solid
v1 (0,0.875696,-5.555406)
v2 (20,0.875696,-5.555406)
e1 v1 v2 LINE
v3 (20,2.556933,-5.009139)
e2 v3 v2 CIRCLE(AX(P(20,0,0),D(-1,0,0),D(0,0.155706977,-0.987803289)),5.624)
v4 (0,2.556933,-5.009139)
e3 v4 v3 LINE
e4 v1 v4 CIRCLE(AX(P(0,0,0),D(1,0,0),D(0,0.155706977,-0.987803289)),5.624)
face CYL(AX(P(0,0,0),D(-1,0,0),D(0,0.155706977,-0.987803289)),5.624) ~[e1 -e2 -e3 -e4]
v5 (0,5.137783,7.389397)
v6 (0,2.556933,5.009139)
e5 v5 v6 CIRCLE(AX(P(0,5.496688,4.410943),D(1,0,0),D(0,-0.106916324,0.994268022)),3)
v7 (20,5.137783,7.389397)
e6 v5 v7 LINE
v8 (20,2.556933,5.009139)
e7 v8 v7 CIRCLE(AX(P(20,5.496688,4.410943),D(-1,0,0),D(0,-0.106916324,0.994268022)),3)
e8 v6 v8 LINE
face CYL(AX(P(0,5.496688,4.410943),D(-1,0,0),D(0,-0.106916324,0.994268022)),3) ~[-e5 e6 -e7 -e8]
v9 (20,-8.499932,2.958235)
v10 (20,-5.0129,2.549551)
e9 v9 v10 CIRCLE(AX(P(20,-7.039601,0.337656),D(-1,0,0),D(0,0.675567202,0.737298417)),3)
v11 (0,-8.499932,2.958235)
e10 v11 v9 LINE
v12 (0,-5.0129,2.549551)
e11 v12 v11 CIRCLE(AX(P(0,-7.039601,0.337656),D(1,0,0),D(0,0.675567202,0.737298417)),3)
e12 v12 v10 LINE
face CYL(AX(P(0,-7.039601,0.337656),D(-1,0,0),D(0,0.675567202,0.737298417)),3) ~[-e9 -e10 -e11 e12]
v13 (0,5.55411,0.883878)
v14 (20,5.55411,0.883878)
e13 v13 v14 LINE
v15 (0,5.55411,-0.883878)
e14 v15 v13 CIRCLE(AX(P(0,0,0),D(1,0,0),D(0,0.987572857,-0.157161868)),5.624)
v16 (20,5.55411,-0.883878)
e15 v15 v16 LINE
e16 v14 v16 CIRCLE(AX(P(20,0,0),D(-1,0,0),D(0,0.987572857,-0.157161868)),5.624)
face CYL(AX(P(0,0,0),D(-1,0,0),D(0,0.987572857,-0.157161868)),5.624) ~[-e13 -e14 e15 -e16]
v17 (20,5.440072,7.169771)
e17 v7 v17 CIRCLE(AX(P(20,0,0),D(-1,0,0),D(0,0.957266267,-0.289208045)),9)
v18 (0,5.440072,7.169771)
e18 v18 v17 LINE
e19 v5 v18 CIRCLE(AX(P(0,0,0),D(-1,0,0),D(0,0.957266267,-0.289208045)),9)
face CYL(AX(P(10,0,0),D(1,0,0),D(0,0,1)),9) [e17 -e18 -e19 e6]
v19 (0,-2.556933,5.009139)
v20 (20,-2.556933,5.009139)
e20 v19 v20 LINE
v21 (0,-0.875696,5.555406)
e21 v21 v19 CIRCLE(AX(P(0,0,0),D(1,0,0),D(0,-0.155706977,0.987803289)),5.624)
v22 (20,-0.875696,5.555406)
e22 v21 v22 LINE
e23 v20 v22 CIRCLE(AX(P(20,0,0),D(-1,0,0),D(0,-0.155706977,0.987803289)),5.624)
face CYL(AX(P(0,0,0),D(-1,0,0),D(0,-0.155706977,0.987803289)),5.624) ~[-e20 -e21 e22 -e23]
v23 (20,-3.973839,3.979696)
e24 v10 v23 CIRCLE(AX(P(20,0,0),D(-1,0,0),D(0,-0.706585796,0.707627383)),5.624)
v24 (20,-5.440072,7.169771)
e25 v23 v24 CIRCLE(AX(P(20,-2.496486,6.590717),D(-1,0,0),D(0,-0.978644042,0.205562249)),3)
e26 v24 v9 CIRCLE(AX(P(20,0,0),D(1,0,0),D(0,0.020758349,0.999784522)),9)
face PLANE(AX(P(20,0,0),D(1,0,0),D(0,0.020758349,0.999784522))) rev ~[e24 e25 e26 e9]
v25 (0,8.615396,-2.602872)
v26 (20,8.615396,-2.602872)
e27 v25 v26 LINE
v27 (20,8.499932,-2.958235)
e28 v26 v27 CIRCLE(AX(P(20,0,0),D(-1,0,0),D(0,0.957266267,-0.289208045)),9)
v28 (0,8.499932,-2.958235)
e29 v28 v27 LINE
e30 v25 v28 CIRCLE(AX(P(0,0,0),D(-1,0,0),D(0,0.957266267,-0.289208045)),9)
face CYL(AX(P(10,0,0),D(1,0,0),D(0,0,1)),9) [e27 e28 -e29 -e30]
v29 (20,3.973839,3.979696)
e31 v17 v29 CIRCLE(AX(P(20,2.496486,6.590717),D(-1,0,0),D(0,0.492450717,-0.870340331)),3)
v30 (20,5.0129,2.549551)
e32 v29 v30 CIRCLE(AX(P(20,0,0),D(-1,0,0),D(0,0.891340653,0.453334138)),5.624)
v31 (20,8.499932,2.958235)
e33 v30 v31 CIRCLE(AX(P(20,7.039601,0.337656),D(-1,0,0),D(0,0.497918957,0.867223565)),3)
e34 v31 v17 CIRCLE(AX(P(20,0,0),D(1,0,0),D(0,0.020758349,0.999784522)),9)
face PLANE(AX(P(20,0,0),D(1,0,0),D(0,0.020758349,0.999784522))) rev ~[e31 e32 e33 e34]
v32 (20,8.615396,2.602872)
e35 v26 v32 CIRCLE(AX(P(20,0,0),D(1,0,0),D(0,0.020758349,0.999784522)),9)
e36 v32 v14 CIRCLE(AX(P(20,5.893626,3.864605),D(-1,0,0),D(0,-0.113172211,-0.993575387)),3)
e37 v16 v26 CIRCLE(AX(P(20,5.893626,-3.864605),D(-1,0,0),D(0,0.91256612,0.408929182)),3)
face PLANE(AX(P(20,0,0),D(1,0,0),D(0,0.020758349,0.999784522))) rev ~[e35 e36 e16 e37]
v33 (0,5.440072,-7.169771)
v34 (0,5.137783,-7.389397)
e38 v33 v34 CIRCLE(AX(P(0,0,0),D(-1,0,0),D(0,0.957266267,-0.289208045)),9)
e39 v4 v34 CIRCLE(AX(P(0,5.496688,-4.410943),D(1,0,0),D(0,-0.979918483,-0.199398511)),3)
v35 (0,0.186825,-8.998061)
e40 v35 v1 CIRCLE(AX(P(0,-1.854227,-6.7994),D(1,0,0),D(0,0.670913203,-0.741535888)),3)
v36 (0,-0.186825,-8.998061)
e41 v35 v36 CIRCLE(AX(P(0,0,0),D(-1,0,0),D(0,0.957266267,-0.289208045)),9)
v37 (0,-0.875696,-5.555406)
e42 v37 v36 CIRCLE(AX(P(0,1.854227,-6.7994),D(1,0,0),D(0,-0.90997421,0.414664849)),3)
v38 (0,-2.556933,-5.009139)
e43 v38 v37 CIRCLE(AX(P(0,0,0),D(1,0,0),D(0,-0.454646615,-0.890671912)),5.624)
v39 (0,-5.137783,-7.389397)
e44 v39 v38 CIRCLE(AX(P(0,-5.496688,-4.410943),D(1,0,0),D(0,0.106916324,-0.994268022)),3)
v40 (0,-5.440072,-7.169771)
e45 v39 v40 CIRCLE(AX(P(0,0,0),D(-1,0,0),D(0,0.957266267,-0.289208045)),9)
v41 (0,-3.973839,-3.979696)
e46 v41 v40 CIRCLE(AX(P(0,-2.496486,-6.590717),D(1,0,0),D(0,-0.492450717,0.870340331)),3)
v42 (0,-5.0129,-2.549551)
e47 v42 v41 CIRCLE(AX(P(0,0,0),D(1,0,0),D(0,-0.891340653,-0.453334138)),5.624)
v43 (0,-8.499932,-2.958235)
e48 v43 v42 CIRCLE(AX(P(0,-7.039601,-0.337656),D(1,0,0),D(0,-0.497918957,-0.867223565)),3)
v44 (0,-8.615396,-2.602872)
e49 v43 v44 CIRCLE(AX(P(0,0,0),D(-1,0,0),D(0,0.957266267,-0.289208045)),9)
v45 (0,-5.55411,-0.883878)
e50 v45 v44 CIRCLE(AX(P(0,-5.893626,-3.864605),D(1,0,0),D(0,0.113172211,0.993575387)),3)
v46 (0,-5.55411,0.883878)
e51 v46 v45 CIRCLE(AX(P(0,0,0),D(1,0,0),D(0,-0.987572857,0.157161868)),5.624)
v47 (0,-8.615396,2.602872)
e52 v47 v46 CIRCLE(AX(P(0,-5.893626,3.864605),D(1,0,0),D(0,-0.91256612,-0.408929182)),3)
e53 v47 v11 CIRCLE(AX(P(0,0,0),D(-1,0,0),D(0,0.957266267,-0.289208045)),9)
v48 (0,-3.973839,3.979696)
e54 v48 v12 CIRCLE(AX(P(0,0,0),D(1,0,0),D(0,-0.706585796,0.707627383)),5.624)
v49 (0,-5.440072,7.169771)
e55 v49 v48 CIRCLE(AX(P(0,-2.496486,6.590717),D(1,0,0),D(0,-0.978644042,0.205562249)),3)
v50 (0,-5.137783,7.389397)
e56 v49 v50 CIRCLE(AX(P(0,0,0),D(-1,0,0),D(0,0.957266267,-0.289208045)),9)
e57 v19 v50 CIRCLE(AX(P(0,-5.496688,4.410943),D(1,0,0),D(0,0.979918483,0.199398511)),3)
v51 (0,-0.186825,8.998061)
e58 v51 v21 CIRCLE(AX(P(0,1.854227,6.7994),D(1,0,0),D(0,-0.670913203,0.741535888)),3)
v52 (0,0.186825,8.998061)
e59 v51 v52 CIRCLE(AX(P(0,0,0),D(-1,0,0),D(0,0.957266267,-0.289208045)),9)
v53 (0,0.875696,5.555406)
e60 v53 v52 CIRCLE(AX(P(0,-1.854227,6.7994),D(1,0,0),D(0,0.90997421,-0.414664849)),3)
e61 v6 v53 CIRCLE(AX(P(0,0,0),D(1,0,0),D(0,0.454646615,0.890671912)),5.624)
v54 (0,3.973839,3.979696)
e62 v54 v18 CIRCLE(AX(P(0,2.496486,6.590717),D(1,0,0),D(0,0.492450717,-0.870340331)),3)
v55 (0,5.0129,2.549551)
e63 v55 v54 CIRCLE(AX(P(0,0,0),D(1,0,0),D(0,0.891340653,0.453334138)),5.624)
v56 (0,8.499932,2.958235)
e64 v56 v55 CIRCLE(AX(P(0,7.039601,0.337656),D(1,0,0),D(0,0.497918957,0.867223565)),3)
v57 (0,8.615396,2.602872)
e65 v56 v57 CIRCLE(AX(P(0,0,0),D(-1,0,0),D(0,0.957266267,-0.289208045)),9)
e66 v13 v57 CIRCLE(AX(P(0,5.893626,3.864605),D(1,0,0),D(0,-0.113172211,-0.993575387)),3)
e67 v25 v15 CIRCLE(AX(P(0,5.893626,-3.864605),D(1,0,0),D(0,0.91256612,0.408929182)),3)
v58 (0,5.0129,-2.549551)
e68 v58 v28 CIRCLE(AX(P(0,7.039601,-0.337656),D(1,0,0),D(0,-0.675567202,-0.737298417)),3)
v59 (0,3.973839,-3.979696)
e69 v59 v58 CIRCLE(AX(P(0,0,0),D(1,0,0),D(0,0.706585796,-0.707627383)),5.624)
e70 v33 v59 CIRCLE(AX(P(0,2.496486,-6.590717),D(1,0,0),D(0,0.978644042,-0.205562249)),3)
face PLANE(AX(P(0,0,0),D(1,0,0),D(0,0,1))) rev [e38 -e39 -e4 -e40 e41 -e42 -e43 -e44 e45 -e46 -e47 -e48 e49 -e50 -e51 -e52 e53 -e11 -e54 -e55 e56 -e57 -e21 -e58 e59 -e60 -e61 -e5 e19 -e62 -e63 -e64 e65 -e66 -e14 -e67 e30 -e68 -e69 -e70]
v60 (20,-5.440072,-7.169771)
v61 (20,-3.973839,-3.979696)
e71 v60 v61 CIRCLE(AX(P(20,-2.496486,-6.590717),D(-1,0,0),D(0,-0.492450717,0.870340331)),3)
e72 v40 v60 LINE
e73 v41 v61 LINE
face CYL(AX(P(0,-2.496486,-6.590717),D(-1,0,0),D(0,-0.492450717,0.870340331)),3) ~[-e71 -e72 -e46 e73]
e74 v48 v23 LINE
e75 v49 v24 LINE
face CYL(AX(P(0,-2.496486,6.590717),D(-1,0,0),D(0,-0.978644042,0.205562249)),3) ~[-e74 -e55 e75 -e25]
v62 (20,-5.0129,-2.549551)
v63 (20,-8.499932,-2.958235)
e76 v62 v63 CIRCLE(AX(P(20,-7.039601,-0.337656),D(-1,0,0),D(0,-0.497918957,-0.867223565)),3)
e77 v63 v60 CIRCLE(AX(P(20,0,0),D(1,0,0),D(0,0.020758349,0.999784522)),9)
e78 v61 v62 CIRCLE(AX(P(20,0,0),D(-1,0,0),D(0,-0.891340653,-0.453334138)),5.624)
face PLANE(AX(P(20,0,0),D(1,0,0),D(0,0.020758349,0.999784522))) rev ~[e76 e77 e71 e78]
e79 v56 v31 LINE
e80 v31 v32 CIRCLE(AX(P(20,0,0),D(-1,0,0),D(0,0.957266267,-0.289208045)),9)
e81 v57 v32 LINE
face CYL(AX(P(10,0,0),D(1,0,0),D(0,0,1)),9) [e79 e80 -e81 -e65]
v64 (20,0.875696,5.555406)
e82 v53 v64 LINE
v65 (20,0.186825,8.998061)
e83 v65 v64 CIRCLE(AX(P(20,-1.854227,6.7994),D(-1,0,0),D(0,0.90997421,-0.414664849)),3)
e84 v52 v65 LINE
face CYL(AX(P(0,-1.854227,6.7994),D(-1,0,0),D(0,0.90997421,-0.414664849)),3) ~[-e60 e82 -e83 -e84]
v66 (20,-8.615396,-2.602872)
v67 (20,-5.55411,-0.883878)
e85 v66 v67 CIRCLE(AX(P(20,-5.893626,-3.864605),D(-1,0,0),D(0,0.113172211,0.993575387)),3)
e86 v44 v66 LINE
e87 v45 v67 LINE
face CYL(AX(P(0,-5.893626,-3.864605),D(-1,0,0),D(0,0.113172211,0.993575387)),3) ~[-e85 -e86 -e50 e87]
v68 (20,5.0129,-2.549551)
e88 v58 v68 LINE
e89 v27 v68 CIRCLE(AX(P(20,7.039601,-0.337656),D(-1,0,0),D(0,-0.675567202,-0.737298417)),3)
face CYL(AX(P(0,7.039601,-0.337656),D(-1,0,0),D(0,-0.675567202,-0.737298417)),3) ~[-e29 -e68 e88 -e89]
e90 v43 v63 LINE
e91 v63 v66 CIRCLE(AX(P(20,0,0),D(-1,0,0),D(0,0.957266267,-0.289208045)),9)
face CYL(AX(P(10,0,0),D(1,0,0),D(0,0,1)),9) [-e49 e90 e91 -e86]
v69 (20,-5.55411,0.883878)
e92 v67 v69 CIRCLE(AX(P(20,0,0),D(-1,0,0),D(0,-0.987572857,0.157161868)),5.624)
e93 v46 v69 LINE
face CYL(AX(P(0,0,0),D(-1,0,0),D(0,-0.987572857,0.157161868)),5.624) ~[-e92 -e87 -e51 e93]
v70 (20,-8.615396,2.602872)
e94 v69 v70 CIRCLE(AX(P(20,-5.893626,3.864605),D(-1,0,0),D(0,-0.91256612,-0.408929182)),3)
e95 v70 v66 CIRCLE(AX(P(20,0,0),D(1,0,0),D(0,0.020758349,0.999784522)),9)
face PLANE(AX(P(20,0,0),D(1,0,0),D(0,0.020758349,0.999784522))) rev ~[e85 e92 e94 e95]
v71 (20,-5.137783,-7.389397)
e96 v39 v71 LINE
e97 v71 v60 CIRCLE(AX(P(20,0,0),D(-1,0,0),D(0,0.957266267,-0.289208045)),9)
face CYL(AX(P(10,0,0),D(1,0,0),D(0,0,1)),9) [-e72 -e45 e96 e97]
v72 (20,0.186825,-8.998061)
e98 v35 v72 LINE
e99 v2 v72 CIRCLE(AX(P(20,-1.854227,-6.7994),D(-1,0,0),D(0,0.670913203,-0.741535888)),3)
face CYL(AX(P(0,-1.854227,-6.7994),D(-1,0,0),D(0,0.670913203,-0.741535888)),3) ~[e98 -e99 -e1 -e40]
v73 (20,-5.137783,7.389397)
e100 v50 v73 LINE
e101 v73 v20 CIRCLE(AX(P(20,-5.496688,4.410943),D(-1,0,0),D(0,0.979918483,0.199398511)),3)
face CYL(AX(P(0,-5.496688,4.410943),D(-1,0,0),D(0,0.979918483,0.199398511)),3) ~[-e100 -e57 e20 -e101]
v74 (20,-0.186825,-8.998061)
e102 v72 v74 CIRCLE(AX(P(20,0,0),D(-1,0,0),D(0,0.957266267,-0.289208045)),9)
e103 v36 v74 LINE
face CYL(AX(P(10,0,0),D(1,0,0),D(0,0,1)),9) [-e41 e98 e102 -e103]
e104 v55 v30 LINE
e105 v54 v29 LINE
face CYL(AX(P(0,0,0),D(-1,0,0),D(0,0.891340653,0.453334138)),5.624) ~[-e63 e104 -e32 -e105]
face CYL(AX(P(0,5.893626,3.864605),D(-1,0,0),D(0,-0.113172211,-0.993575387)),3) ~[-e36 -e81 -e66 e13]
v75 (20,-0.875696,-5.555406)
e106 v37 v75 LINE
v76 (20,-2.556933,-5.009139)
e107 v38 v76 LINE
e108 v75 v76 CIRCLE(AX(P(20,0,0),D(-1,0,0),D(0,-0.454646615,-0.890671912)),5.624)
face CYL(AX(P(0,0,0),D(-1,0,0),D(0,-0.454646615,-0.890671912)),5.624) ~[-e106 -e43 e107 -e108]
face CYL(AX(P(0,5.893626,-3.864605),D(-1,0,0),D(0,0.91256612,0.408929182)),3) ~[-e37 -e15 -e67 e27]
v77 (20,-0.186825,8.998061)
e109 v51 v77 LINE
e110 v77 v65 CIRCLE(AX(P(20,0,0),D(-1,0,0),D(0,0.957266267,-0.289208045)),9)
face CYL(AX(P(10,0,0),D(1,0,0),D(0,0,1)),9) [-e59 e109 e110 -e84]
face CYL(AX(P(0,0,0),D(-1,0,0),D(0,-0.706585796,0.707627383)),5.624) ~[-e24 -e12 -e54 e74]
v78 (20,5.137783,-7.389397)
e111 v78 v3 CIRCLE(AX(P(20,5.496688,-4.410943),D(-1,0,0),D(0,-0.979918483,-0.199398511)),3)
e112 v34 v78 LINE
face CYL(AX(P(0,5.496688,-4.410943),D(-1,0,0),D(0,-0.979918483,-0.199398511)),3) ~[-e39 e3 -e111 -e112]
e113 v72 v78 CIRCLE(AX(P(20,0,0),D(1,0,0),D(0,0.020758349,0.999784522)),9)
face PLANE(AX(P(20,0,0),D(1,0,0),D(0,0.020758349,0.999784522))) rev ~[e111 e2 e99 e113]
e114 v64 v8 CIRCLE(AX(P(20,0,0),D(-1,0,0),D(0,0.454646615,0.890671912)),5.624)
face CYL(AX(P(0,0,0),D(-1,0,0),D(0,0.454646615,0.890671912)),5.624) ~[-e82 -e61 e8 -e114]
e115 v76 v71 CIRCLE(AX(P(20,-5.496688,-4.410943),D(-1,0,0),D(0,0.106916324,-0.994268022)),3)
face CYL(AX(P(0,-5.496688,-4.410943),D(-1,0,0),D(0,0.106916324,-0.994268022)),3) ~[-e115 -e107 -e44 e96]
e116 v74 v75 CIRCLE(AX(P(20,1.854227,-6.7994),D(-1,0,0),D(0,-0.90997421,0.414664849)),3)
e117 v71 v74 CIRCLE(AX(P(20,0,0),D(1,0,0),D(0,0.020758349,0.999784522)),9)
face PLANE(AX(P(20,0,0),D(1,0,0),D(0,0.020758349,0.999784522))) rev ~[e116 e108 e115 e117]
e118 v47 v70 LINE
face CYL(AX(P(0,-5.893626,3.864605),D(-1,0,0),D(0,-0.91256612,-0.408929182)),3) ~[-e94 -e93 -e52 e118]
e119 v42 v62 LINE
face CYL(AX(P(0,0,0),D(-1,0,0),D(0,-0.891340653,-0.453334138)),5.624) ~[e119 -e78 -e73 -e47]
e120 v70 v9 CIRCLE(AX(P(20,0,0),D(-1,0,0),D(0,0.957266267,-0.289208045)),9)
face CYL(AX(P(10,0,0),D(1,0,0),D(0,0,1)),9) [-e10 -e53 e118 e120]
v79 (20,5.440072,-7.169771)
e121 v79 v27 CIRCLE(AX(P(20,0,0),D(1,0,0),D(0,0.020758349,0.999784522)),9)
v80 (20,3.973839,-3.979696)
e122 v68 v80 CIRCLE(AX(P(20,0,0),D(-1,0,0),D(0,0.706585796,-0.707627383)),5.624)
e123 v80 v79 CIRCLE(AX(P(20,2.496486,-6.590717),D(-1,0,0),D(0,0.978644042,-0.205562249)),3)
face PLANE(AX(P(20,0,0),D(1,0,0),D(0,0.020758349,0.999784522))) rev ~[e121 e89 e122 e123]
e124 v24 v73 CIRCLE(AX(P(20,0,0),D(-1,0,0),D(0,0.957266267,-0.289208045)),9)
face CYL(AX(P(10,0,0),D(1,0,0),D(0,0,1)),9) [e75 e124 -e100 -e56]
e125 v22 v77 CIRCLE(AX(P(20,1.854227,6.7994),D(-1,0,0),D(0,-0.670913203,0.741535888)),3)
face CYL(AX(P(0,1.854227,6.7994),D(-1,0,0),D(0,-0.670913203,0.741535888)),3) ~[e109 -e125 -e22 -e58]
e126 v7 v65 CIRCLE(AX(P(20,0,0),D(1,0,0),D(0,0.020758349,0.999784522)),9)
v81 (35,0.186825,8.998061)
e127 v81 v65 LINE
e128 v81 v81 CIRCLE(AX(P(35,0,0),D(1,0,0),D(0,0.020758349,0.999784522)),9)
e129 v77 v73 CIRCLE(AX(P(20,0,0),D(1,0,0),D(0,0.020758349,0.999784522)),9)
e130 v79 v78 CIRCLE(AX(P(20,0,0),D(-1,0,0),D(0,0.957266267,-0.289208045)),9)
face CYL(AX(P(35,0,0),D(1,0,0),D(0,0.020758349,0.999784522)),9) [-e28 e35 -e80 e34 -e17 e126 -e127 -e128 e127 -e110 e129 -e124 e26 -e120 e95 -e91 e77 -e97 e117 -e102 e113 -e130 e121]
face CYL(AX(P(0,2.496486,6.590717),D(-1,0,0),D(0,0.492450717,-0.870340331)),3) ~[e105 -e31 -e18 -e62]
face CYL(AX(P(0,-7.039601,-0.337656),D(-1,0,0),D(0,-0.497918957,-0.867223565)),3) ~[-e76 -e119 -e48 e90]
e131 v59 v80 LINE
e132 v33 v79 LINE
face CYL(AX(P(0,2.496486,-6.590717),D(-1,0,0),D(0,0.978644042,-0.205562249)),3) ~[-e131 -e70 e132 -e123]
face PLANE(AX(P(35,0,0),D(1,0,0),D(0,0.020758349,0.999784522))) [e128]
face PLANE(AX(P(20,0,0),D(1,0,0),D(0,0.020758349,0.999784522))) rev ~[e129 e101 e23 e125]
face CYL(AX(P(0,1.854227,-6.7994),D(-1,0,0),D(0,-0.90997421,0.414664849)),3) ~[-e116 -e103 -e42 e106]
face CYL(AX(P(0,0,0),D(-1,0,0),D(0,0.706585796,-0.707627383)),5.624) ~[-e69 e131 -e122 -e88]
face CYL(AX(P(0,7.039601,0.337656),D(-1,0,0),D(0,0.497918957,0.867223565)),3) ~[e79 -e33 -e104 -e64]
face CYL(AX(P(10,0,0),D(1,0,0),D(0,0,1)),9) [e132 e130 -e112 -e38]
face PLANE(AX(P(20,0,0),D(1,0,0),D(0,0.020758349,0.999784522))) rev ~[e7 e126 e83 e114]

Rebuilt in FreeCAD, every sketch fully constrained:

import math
import FreeCAD as App
import Part
import Sketcher

doc = App.newDocument("Part")
params = doc.addObject("Spreadsheet::Sheet", "Params")
for row, (alias, value) in enumerate([
    ("sketch1_width", "20 mm"),
    ("sketch1_height", "9 mm"),
    ("revolution_angle", "360 deg"),
    ("sketch2_radius", "3 mm"),
    ("sketch3_diameter", "5 mm"),
    ("pocket2_length", "100.000102 mm"),
    ("sketch4_diameter", "6 mm"),
    ("pad1_length", "20 mm"),
    ("sketch5_diameter", "18 mm"),
    ("pad2_length", "15 mm"),
], start=1):
    params.set(f"A{row}", alias)
    params.set(f"B{row}", "=" + value)
    params.setAlias(f"B{row}", alias)

body = doc.addObject("PartDesign::Body", "Body")

sketch1 = body.newObject("Sketcher::SketchObject", "Sketch")
sketch1.AttachmentSupport = (doc.getObject("XZ_Plane"), [""])
sketch1.MapMode = "FlatFace"
sketch1.addGeometry(Part.LineSegment(App.Vector(0, -9, 0), App.Vector(0, 0, 0)), False)
sketch1.addGeometry(Part.LineSegment(App.Vector(0, 0, 0), App.Vector(20, 0, 0)), False)
sketch1.addGeometry(Part.LineSegment(App.Vector(20, 0, 0), App.Vector(20, -9, 0)), False)
sketch1.addGeometry(Part.LineSegment(App.Vector(20, -9, 0), App.Vector(0, -9, 0)), False)
sketch1.addConstraint(Sketcher.Constraint("Coincident", 0, 2, 1, 1))
sketch1.addConstraint(Sketcher.Constraint("Coincident", 1, 2, 2, 1))
sketch1.addConstraint(Sketcher.Constraint("Coincident", 2, 2, 3, 1))
sketch1.addConstraint(Sketcher.Constraint("Coincident", 3, 2, 0, 1))
sketch1.addConstraint(Sketcher.Constraint("Vertical", 0))
sketch1.addConstraint(Sketcher.Constraint("Horizontal", 1))
sketch1.addConstraint(Sketcher.Constraint("Vertical", 2))
sketch1.addConstraint(Sketcher.Constraint("Horizontal", 3))
sketch1.addConstraint(Sketcher.Constraint("Coincident", 0, 2, -1, 1))
sketch1.addConstraint(Sketcher.Constraint("DistanceX", 1, 1, 1, 2, 20.0))
sketch1.addConstraint(Sketcher.Constraint("DistanceY", 0, 1, 0, 2, 9.0))
sketch1.setExpression("Constraints[9]", "Params.sketch1_width")
sketch1.setExpression("Constraints[10]", "Params.sketch1_height")
revolution = body.newObject("PartDesign::Revolution", "Revolution")
revolution.Profile = sketch1
revolution.ReferenceAxis = (sketch1, ["H_Axis"])
revolution.setExpression("Angle", "Params.revolution_angle")

sketch2 = body.newObject("Sketcher::SketchObject", "Sketch001")
sketch2.AttachmentSupport = (doc.getObject("YZ_Plane"), [""])
sketch2.MapMode = "FlatFace"
sketch2.addGeometry(Part.ArcOfCircle(Part.Circle(App.Vector(0, 0, 0), App.Vector(0, 0, 1), 5.624), math.radians(-9.042199), math.radians(9.042199)), False)
sketch2.addGeometry(Part.ArcOfCircle(Part.Circle(App.Vector(5.893626, -3.864605, 0), App.Vector(0, 0, 1), 3), math.radians(24.137585), math.radians(96.498212)), False)
sketch2.addGeometry(Part.ArcOfCircle(Part.Circle(App.Vector(0, 0, 0), App.Vector(0, 0, 1), 9.0254), math.radians(-16.993663), math.radians(16.993663)), False)
sketch2.addGeometry(Part.ArcOfCircle(Part.Circle(App.Vector(5.893626, 3.864605, 0), App.Vector(0, 0, 1), 3), math.radians(-96.498212), math.radians(-24.137585)), False)
sketch2.addConstraint(Sketcher.Constraint("Coincident", 0, 1, 1, 2))
sketch2.addConstraint(Sketcher.Constraint("Coincident", 1, 1, 2, 1))
sketch2.addConstraint(Sketcher.Constraint("Coincident", 2, 2, 3, 2))
sketch2.addConstraint(Sketcher.Constraint("Coincident", 3, 1, 0, 2))
sketch2.addConstraint(Sketcher.Constraint("Coincident", 0, 3, -1, 1))
sketch2.addConstraint(Sketcher.Constraint("Coincident", 2, 3, -1, 1))
sketch2.addConstraint(Sketcher.Constraint("Equal", 1, 3))
sketch2.addConstraint(Sketcher.Constraint("Symmetric", 1, 3, 3, 3, -1))
sketch2.addConstraint(Sketcher.Constraint("Radius", 1, 3.0))
sketch2.addConstraint(Sketcher.Constraint("Radius", 0, 5.624))
sketch2.addConstraint(Sketcher.Constraint("Radius", 2, 9.0254))
sketch2.addConstraint(Sketcher.Constraint("DistanceX", 1, 3, 1, 1, 2.737698))
sketch2.addConstraint(Sketcher.Constraint("DistanceX", -1, 1, 0, 1, 5.55411))
sketch2.setExpression("Constraints[8]", "Params.sketch2_radius")
pocket1 = body.newObject("PartDesign::Pocket", "Pocket")
pocket1.Profile = sketch2
pocket1.Type = "ThroughAll"
pocket1.Reversed = True
doc.recompute()

polarpattern = body.newObject("PartDesign::PolarPattern", "PolarPattern")
polarpattern.Originals = [pocket1]
polarpattern.Axis = (doc.getObject("X_Axis"), [""])
polarpattern.Angle = 360
polarpattern.Occurrences = 10
body.Tip = polarpattern

sketch3 = body.newObject("Sketcher::SketchObject", "Sketch002")
sketch3.AttachmentSupport = (doc.getObject("YZ_Plane"), [""])
sketch3.MapMode = "FlatFace"
sketch3.addGeometry(Part.Circle(App.Vector(0, 0, 0), App.Vector(0, 0, 1), 2.5), False)
sketch3.addConstraint(Sketcher.Constraint("Coincident", 0, 3, -1, 1))
sketch3.addConstraint(Sketcher.Constraint("Diameter", 0, 5.0))
sketch3.setExpression("Constraints[1]", "Params.sketch3_diameter")
pocket2 = body.newObject("PartDesign::Pocket", "Pocket001")
pocket2.Profile = sketch3
pocket2.setExpression("Length", "Params.pocket2_length")
pocket2.Midplane = True

sketch4 = body.newObject("Sketcher::SketchObject", "Sketch003")
sketch4.AttachmentSupport = (doc.getObject("YZ_Plane"), [""])
sketch4.MapMode = "FlatFace"
sketch4.AttachmentOffset = App.Placement(App.Vector(0, 0, 20), App.Rotation())
sketch4.addGeometry(Part.Circle(App.Vector(0, 0, 0), App.Vector(0, 0, 1), 3), False)
sketch4.addConstraint(Sketcher.Constraint("Coincident", 0, 3, -1, 1))
sketch4.addConstraint(Sketcher.Constraint("Diameter", 0, 6.0))
sketch4.setExpression("Constraints[1]", "Params.sketch4_diameter")
pad1 = body.newObject("PartDesign::Pad", "Pad")
pad1.Profile = sketch4
pad1.setExpression("Length", "Params.pad1_length")
pad1.Reversed = True

sketch5 = body.newObject("Sketcher::SketchObject", "Sketch004")
sketch5.AttachmentSupport = (doc.getObject("YZ_Plane"), [""])
sketch5.MapMode = "FlatFace"
sketch5.AttachmentOffset = App.Placement(App.Vector(0, 0, 35), App.Rotation())
sketch5.addGeometry(Part.Circle(App.Vector(0, 0, 0), App.Vector(0, 0, 1), 9), False)
sketch5.addConstraint(Sketcher.Constraint("Coincident", 0, 3, -1, 1))
sketch5.addConstraint(Sketcher.Constraint("Diameter", 0, 18.0))
sketch5.setExpression("Constraints[1]", "Params.sketch5_diameter")
pad2 = body.newObject("PartDesign::Pad", "Pad001")
pad2.Profile = sketch5
pad2.setExpression("Length", "Params.pad2_length")
pad2.Reversed = True

doc.recompute()
